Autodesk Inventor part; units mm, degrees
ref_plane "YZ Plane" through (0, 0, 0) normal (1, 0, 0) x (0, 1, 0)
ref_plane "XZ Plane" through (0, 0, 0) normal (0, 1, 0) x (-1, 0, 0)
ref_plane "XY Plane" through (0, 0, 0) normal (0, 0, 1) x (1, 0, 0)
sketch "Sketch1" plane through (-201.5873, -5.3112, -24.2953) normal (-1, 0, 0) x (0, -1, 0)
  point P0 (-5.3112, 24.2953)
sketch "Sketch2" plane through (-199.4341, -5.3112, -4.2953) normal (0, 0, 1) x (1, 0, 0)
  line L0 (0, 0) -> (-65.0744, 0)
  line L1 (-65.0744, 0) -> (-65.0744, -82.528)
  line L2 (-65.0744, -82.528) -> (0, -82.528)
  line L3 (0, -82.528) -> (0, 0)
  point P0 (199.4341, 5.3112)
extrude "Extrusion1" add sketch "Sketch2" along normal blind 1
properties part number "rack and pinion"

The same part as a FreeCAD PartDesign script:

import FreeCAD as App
import Part
import Sketcher
from FreeCAD import Vector


def add_polygon(sketch, points):
    """Adds a closed chain of lines whose ends are joined by coincident constraints."""
    first, n = sketch.GeometryCount, len(points)
    for a, b in zip(points, points[1:] + points[:1]):
        sketch.addGeometry(Part.LineSegment(App.Vector(*a, 0), App.Vector(*b, 0)), False)
    for i in range(n):
        sketch.addConstraint(Sketcher.Constraint("Coincident", first + i, 2, first + (i + 1) % n, 1))

doc = App.newDocument("Part")
params = doc.addObject("Spreadsheet::Sheet", "Params")
for row, (alias, value) in enumerate([
    ("pad1_length", "1 mm"),
], start=1):
    params.set(f"A{row}", alias)
    params.set(f"B{row}", "=" + value)
    params.setAlias(f"B{row}", alias)

body = doc.addObject("PartDesign::Body", "Body")

sketch1 = doc.addObject("Sketcher::SketchObject", "Sketch")
body.addObject(sketch1)
sketch1.AttachmentSupport = (doc.XY_Plane, [""])
sketch1.MapMode = "FlatFace"
sketch1.AttachmentOffset = App.Placement(Vector(0, 0, -4.2953), App.Rotation())
add_polygon(sketch1, [(-199.4341, -87.8392), (-199.4341, -5.3112), (-264.5085, -5.3112), (-264.5085, -87.8392)])
sketch1.addConstraint([
    Sketcher.Constraint("Vertical", 0),
    Sketcher.Constraint("Horizontal", 1),
    Sketcher.Constraint("Vertical", 2),
    Sketcher.Constraint("Horizontal", 3),
    Sketcher.Constraint("DistanceY", 0, 1, 0, 2, 82.528),
    Sketcher.Constraint("DistanceX", 1, 2, 1, 1, 65.0744),
    Sketcher.Constraint("DistanceX", 0, 2, -1, 1, 199.434),
    Sketcher.Constraint("DistanceY", 0, 2, -1, 1, 5.3112),
])
pad1 = doc.addObject("PartDesign::Pad", "Pad")
body.addObject(pad1)
pad1.Profile = sketch1
pad1.setExpression("Length", "Params.pad1_length")

doc.recompute()
